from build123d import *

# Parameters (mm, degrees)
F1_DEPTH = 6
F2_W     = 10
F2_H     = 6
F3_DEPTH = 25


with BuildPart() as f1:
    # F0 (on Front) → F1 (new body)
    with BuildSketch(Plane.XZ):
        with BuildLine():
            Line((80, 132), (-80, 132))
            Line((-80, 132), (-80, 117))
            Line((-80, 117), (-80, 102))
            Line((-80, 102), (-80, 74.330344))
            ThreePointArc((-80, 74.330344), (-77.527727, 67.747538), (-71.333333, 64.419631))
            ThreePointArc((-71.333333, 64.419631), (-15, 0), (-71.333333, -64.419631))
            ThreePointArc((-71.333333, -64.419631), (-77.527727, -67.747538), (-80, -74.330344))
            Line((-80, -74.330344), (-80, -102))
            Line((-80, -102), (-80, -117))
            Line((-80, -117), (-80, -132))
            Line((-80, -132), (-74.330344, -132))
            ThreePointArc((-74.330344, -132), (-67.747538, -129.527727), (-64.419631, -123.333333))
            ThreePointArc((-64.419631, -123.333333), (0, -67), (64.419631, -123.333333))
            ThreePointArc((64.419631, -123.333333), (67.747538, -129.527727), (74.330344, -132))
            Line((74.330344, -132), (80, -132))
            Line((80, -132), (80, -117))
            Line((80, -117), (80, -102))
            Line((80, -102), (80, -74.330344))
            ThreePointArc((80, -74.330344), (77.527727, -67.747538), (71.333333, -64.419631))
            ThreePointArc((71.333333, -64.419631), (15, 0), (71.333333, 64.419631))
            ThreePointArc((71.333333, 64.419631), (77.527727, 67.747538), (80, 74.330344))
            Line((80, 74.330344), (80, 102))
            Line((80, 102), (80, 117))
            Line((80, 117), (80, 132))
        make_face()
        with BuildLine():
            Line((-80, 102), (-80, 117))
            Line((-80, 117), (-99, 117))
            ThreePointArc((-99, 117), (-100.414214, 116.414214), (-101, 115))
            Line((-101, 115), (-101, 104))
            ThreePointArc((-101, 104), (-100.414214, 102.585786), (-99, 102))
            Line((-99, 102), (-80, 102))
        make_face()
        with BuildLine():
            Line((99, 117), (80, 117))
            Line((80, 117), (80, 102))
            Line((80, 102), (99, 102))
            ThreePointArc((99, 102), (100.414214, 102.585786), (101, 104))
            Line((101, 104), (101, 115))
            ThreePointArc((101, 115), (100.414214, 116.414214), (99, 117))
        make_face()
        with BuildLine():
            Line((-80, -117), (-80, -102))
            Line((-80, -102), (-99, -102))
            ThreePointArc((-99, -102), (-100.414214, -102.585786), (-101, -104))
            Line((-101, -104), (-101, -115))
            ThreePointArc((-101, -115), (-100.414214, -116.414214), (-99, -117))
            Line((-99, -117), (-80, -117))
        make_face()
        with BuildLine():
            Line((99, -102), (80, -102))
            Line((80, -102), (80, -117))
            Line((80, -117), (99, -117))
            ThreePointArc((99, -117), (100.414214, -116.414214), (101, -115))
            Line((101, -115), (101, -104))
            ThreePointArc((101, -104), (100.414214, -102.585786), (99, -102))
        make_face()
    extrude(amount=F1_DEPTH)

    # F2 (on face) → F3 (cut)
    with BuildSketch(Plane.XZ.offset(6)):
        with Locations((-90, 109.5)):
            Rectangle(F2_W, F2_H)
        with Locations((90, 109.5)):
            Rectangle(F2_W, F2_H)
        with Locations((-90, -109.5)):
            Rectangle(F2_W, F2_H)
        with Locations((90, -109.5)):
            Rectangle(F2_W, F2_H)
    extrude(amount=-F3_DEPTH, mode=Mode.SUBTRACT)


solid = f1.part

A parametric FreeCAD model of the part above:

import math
import FreeCAD as App
import Part
import Sketcher

V = App.Vector

doc = App.newDocument("Part")
body = doc.addObject("PartDesign::Body", "Body")

# Sketch on XZ plane
sketch1 = body.newObject("Sketcher::SketchObject", "Sketch")
sketch1.AttachmentSupport = (doc.getObject("XZ_Plane"), [""])
sketch1.MapMode = "FlatFace"
sketch1.addGeometry([
    Part.LineSegment(V(80, 132, 0), V(-80, 132, 0)),  # 0
    Part.LineSegment(V(-80, 132, 0), V(-80, 117, 0)),  # 1
    Part.LineSegment(V(-80, 117, 0), V(-99, 117, 0)),  # 2
    Part.ArcOfCircle(Part.Circle(V(-99.000001, 115.000001, 0), V(0, 0, 1), 1.999999), math.radians(89.999957), math.radians(180.000043)),  # 3
    Part.LineSegment(V(-101, 115, 0), V(-101, 104, 0)),  # 4
    Part.ArcOfCircle(Part.Circle(V(-99.000001, 103.999999, 0), V(0, 0, 1), 1.999999), math.radians(179.999957), math.radians(270.000043)),  # 5
    Part.LineSegment(V(-99, 102, 0), V(-80, 102, 0)),  # 6
    Part.LineSegment(V(-80, 102, 0), V(-80, 74.330344, 0)),  # 7
    Part.ArcOfCircle(Part.Circle(V(-70, 74.330343, 0), V(0, 0, 1), 10), math.radians(179.999995), math.radians(262.337748)),  # 8
    Part.ArcOfCircle(Part.Circle(V(-80, 0, 0), V(0, 0, 1), 65), math.radians(-82.337744), math.radians(82.337744)),  # 9
    Part.ArcOfCircle(Part.Circle(V(-70, -74.330343, 0), V(0, 0, 1), 10), math.radians(97.662252), math.radians(180.000005)),  # 10
    Part.LineSegment(V(-80, -74.330344, 0), V(-80, -102, 0)),  # 11
    Part.LineSegment(V(-80, -102, 0), V(-99, -102, 0)),  # 12
    Part.ArcOfCircle(Part.Circle(V(-99.000001, -103.999999, 0), V(0, 0, 1), 1.999999), math.radians(89.999957), math.radians(180.000043)),  # 13
    Part.LineSegment(V(-101, -104, 0), V(-101, -115, 0)),  # 14
    Part.ArcOfCircle(Part.Circle(V(-99.000001, -115.000001, 0), V(0, 0, 1), 1.999999), math.radians(179.999957), math.radians(270.000043)),  # 15
    Part.LineSegment(V(-99, -117, 0), V(-80, -117, 0)),  # 16
    Part.LineSegment(V(-80, -117, 0), V(-80, -132, 0)),  # 17
    Part.LineSegment(V(-80, -132, 0), V(-74.330344, -132, 0)),  # 18
    Part.ArcOfCircle(Part.Circle(V(-74.330343, -122, 0), V(0, 0, 1), 10), math.radians(-90.000005), math.radians(-7.662252)),  # 19
    Part.ArcOfCircle(Part.Circle(V(0, -132, 0), V(0, 0, 1), 65), math.radians(7.662256), math.radians(172.337744)),  # 20
    Part.ArcOfCircle(Part.Circle(V(74.330343, -122, 0), V(0, 0, 1), 10), math.radians(-172.337748), math.radians(-89.999995)),  # 21
    Part.LineSegment(V(74.330344, -132, 0), V(80, -132, 0)),  # 22
    Part.LineSegment(V(80, -132, 0), V(80, -117, 0)),  # 23
    Part.LineSegment(V(80, -117, 0), V(99, -117, 0)),  # 24
    Part.ArcOfCircle(Part.Circle(V(99.000001, -115.000001, 0), V(0, 0, 1), 1.999999), math.radians(-90.000043), math.radians(0.000043)),  # 25
    Part.LineSegment(V(101, -115, 0), V(101, -104, 0)),  # 26
    Part.ArcOfCircle(Part.Circle(V(99.000001, -103.999999, 0), V(0, 0, 1), 1.999999), math.radians(-0.000043), math.radians(90.000043)),  # 27
    Part.LineSegment(V(99, -102, 0), V(80, -102, 0)),  # 28
    Part.LineSegment(V(80, -102, 0), V(80, -74.330344, 0)),  # 29
    Part.ArcOfCircle(Part.Circle(V(70, -74.330343, 0), V(0, 0, 1), 10), math.radians(-0.000005), math.radians(82.337748)),  # 30
    Part.ArcOfCircle(Part.Circle(V(80, 0, 0), V(0, 0, 1), 65), math.radians(97.662256), math.radians(262.337744)),  # 31
    Part.ArcOfCircle(Part.Circle(V(70, 74.330343, 0), V(0, 0, 1), 10), math.radians(-82.337748), math.radians(0.000005)),  # 32
    Part.LineSegment(V(80, 74.330344, 0), V(80, 102, 0)),  # 33
    Part.LineSegment(V(80, 102, 0), V(99, 102, 0)),  # 34
    Part.ArcOfCircle(Part.Circle(V(99.000001, 103.999999, 0), V(0, 0, 1), 1.999999), math.radians(-90.000043), math.radians(0.000043)),  # 35
    Part.LineSegment(V(101, 104, 0), V(101, 115, 0)),  # 36
    Part.ArcOfCircle(Part.Circle(V(99.000001, 115.000001, 0), V(0, 0, 1), 1.999999), math.radians(-0.000043), math.radians(90.000043)),  # 37
    Part.LineSegment(V(99, 117, 0), V(80, 117, 0)),  # 38
    Part.LineSegment(V(80, 117, 0), V(80, 132, 0)),  # 39
], False)
sketch1.addConstraint([
    Sketcher.Constraint("Coincident", 0, 2, 1, 1),
    Sketcher.Constraint("Coincident", 1, 2, 2, 1),
    Sketcher.Constraint("Tangent", 2, 2, 3, 1),
    Sketcher.Constraint("Tangent", 3, 2, 4, 1),
    Sketcher.Constraint("Tangent", 4, 2, 5, 1),
    Sketcher.Constraint("Tangent", 5, 2, 6, 1),
    Sketcher.Constraint("Coincident", 6, 2, 7, 1),
    Sketcher.Constraint("Tangent", 7, 2, 8, 1),
    Sketcher.Constraint("Tangent", 8, 2, 9, 2),
    Sketcher.Constraint("Tangent", 9, 1, 10, 1),
    Sketcher.Constraint("Tangent", 10, 2, 11, 1),
    Sketcher.Constraint("Coincident", 11, 2, 12, 1),
    Sketcher.Constraint("Tangent", 12, 2, 13, 1),
    Sketcher.Constraint("Tangent", 13, 2, 14, 1),
    Sketcher.Constraint("Tangent", 14, 2, 15, 1),
    Sketcher.Constraint("Tangent", 15, 2, 16, 1),
    Sketcher.Constraint("Coincident", 16, 2, 17, 1),
    Sketcher.Constraint("Coincident", 17, 2, 18, 1),
    Sketcher.Constraint("Tangent", 18, 2, 19, 1),
    Sketcher.Constraint("Tangent", 19, 2, 20, 2),
    Sketcher.Constraint("Tangent", 20, 1, 21, 1),
    Sketcher.Constraint("Tangent", 21, 2, 22, 1),
    Sketcher.Constraint("Coincident", 22, 2, 23, 1),
    Sketcher.Constraint("Coincident", 23, 2, 24, 1),
    Sketcher.Constraint("Tangent", 24, 2, 25, 1),
    Sketcher.Constraint("Tangent", 25, 2, 26, 1),
    Sketcher.Constraint("Tangent", 26, 2, 27, 1),
    Sketcher.Constraint("Tangent", 27, 2, 28, 1),
    Sketcher.Constraint("Coincident", 28, 2, 29, 1),
    Sketcher.Constraint("Tangent", 29, 2, 30, 1),
    Sketcher.Constraint("Tangent", 30, 2, 31, 2),
    Sketcher.Constraint("Tangent", 31, 1, 32, 1),
    Sketcher.Constraint("Tangent", 32, 2, 33, 1),
    Sketcher.Constraint("Coincident", 33, 2, 34, 1),
    Sketcher.Constraint("Tangent", 34, 2, 35, 1),
    Sketcher.Constraint("Tangent", 35, 2, 36, 1),
    Sketcher.Constraint("Tangent", 36, 2, 37, 1),
    Sketcher.Constraint("Tangent", 37, 2, 38, 1),
    Sketcher.Constraint("Coincident", 38, 2, 39, 1),
    Sketcher.Constraint("Coincident", 39, 2, 0, 1),
    Sketcher.Constraint("Horizontal", 0),
    Sketcher.Constraint("Vertical", 1),
    Sketcher.Constraint("Horizontal", 2),
    Sketcher.Constraint("Vertical", 4),
    Sketcher.Constraint("Horizontal", 6),
    Sketcher.Constraint("Vertical", 7),
    Sketcher.Constraint("Vertical", 11),
    Sketcher.Constraint("Horizontal", 12),
    Sketcher.Constraint("Vertical", 14),
    Sketcher.Constraint("Horizontal", 16),
    Sketcher.Constraint("Vertical", 17),
    Sketcher.Constraint("Horizontal", 18),
    Sketcher.Constraint("Horizontal", 22),
    Sketcher.Constraint("Vertical", 23),
    Sketcher.Constraint("Horizontal", 24),
    Sketcher.Constraint("Vertical", 26),
    Sketcher.Constraint("Horizontal", 28),
    Sketcher.Constraint("Vertical", 29),
    Sketcher.Constraint("Vertical", 33),
    Sketcher.Constraint("Horizontal", 34),
    Sketcher.Constraint("Vertical", 36),
    Sketcher.Constraint("Horizontal", 38),
    Sketcher.Constraint("Vertical", 39),
    Sketcher.Constraint("Equal", 3, 5),
    Sketcher.Constraint("Equal", 8, 10),
    Sketcher.Constraint("Equal", 5, 13),
    Sketcher.Constraint("Equal", 13, 15),
    Sketcher.Constraint("Equal", 10, 19),
    Sketcher.Constraint("Equal", 9, 20),
    Sketcher.Constraint("Equal", 19, 21),
    Sketcher.Constraint("Equal", 15, 25),
    Sketcher.Constraint("Equal", 25, 27),
    Sketcher.Constraint("Equal", 21, 30),
    Sketcher.Constraint("Equal", 20, 31),
    Sketcher.Constraint("Equal", 30, 32),
    Sketcher.Constraint("Equal", 27, 35),
    Sketcher.Constraint("Equal", 35, 37),
    Sketcher.Constraint("Symmetric", 3, 3, 25, 3, -1, 1),
    Sketcher.Constraint("Symmetric", 8, 3, 30, 3, -1, 1),
    Sketcher.Constraint("Symmetric", 10, 3, 32, 3, -1, 1),
    Sketcher.Constraint("Symmetric", 13, 3, 35, 3, -1, 1),
    Sketcher.Constraint("Symmetric", 0, 2, 22, 2, -1, 1),
    Sketcher.Constraint("Symmetric", 16, 2, 38, 2, -1, 1),
    Sketcher.Constraint("Symmetric", 19, 3, 21, 3, -2),
    Sketcher.Constraint("Symmetric", 15, 3, 25, 3, -2),
    Sketcher.Constraint("Symmetric", 10, 3, 30, 3, -2),
    Sketcher.Constraint("Horizontal", 13, 3, 27, 3),
    Sketcher.Constraint("Horizontal", 5, 3, 35, 3),
    Sketcher.Constraint("Horizontal", 20, 3, 17, 2),
    Sketcher.Constraint("Vertical", 9, 3, 0, 2),
    Sketcher.Constraint("Vertical", 1, 2, 6, 2),
    Sketcher.Constraint("Vertical", 11, 2, 16, 2),
    Sketcher.Constraint("Radius", 3, 1.999999),
    Sketcher.Constraint("Radius", 8, 10.0),
    Sketcher.Constraint("Radius", 9, 65.0),
    Sketcher.Constraint("DistanceX", 0, 2, 0, 1, 160.0),
    Sketcher.Constraint("DistanceX", 2, 2, 2, 1, 19.0),
    Sketcher.Constraint("DistanceY", 1, 2, 1, 1, 15.0),
    Sketcher.Constraint("DistanceY", 4, 2, 4, 1, 11.0),
    Sketcher.Constraint("DistanceY", -1, 1, 3, 3, 115.000001),
])
pad1 = body.newObject("PartDesign::Pad", "Pad")
pad1.Profile = sketch1
pad1.Length = 6

# Sketch on XZ plane
sketch2 = body.newObject("Sketcher::SketchObject", "Sketch001")
sketch2.AttachmentSupport = (doc.getObject("XZ_Plane"), [""])
sketch2.MapMode = "FlatFace"
sketch2.AttachmentOffset = App.Placement(V(0, 0, 6), App.Rotation())
sketch2.addGeometry([
    Part.LineSegment(V(-95, 112.5, 0), V(-95, 106.5, 0)),  # 0
    Part.LineSegment(V(-95, 106.5, 0), V(-85, 106.5, 0)),  # 1
    Part.LineSegment(V(-85, 106.5, 0), V(-85, 112.5, 0)),  # 2
    Part.LineSegment(V(-85, 112.5, 0), V(-95, 112.5, 0)),  # 3
    Part.LineSegment(V(85, 112.5, 0), V(85, 106.5, 0)),  # 4
    Part.LineSegment(V(85, 106.5, 0), V(95, 106.5, 0)),  # 5
    Part.LineSegment(V(95, 106.5, 0), V(95, 112.5, 0)),  # 6
    Part.LineSegment(V(95, 112.5, 0), V(85, 112.5, 0)),  # 7
    Part.LineSegment(V(-95, -106.5, 0), V(-95, -112.5, 0)),  # 8
    Part.LineSegment(V(-95, -112.5, 0), V(-85, -112.5, 0)),  # 9
    Part.LineSegment(V(-85, -112.5, 0), V(-85, -106.5, 0)),  # 10
    Part.LineSegment(V(-85, -106.5, 0), V(-95, -106.5, 0)),  # 11
    Part.LineSegment(V(85, -106.5, 0), V(85, -112.5, 0)),  # 12
    Part.LineSegment(V(85, -112.5, 0), V(95, -112.5, 0)),  # 13
    Part.LineSegment(V(95, -112.5, 0), V(95, -106.5, 0)),  # 14
    Part.LineSegment(V(95, -106.5, 0), V(85, -106.5, 0)),  # 15
], False)
sketch2.addConstraint([
    Sketcher.Constraint("Coincident", 0, 2, 1, 1),
    Sketcher.Constraint("Coincident", 1, 2, 2, 1),
    Sketcher.Constraint("Coincident", 2, 2, 3, 1),
    Sketcher.Constraint("Coincident", 3, 2, 0, 1),
    Sketcher.Constraint("Coincident", 4, 2, 5, 1),
    Sketcher.Constraint("Coincident", 5, 2, 6, 1),
    Sketcher.Constraint("Coincident", 6, 2, 7, 1),
    Sketcher.Constraint("Coincident", 7, 2, 4, 1),
    Sketcher.Constraint("Coincident", 8, 2, 9, 1),
    Sketcher.Constraint("Coincident", 9, 2, 10, 1),
    Sketcher.Constraint("Coincident", 10, 2, 11, 1),
    Sketcher.Constraint("Coincident", 11, 2, 8, 1),
    Sketcher.Constraint("Coincident", 12, 2, 13, 1),
    Sketcher.Constraint("Coincident", 13, 2, 14, 1),
    Sketcher.Constraint("Coincident", 14, 2, 15, 1),
    Sketcher.Constraint("Coincident", 15, 2, 12, 1),
    Sketcher.Constraint("Vertical", 0),
    Sketcher.Constraint("Horizontal", 1),
    Sketcher.Constraint("Vertical", 2),
    Sketcher.Constraint("Horizontal", 3),
    Sketcher.Constraint("Vertical", 4),
    Sketcher.Constraint("Horizontal", 5),
    Sketcher.Constraint("Vertical", 6),
    Sketcher.Constraint("Horizontal", 7),
    Sketcher.Constraint("Vertical", 8),
    Sketcher.Constraint("Horizontal", 9),
    Sketcher.Constraint("Vertical", 10),
    Sketcher.Constraint("Horizontal", 11),
    Sketcher.Constraint("Vertical", 12),
    Sketcher.Constraint("Horizontal", 13),
    Sketcher.Constraint("Vertical", 14),
    Sketcher.Constraint("Horizontal", 15),
    Sketcher.Constraint("Symmetric", 6, 2, 8, 2, -1, 1),
    Sketcher.Constraint("Symmetric", 4, 2, 10, 2, -1, 1),
    Sketcher.Constraint("Symmetric", 2, 2, 12, 2, -1, 1),
    Sketcher.Constraint("Symmetric", 0, 2, 14, 2, -1, 1),
    Sketcher.Constraint("Symmetric", 1, 2, 4, 2, -2),
    Sketcher.Constraint("Symmetric", 3, 2, 6, 2, -2),
    Sketcher.Constraint("DistanceX", 1, 1, 1, 2, 10.0),
    Sketcher.Constraint("DistanceY", 0, 2, 0, 1, 6.0),
    Sketcher.Constraint("DistanceX", 0, 2, -1, 1, 95.0),
    Sketcher.Constraint("DistanceY", 8, 2, 0, 2, 219.0),
])
pocket1 = body.newObject("PartDesign::Pocket", "Pocket")
pocket1.Profile = sketch2
pocket1.Length = 25

doc.recompute()
